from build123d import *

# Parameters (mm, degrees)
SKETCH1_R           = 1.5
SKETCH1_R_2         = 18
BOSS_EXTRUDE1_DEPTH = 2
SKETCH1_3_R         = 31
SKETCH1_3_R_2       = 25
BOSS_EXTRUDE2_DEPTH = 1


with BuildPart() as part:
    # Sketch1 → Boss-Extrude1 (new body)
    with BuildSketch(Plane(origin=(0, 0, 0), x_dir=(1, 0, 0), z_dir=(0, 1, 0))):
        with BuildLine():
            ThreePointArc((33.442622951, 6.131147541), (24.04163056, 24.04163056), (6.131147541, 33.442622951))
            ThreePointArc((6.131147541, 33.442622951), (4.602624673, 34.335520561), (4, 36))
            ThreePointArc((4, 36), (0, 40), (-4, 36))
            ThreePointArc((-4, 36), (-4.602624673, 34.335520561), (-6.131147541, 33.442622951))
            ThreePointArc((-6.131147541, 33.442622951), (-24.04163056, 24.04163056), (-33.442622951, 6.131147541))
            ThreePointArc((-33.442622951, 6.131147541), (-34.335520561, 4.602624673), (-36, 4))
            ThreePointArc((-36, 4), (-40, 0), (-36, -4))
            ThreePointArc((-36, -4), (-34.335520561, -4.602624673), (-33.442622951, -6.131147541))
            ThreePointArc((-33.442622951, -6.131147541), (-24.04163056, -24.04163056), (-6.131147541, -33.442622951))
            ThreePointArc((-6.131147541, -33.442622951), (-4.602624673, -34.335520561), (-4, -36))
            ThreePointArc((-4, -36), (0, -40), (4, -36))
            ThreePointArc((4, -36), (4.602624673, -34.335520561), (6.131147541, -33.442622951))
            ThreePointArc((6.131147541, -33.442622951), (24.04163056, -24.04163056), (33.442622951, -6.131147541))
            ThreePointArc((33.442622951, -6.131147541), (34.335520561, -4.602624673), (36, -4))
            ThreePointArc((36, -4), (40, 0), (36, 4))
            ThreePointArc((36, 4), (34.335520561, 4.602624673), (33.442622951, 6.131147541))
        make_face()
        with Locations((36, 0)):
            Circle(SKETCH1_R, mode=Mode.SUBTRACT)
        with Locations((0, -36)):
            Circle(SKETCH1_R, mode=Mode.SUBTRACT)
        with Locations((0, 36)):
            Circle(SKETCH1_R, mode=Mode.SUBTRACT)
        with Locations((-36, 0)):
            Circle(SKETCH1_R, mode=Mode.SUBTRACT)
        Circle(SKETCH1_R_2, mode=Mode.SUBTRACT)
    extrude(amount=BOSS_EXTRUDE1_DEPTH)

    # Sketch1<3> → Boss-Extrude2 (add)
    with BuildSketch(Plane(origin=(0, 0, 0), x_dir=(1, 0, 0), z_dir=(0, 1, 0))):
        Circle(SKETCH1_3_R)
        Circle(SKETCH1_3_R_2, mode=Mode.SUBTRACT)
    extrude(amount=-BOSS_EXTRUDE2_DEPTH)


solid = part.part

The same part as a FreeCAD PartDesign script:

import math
import FreeCAD as App
import Part
import Sketcher
from FreeCAD import Vector
Q = App.Units.Quantity

doc = App.newDocument("Part")
body = doc.addObject("PartDesign::Body", "Body")

sketch1 = body.newObject("Sketcher::SketchObject", "Sketch")
sketch1.AttachmentSupport = (doc.getObject("XZ_Plane"), [""])
sketch1.MapMode = "FlatFace"
sketch1.addGeometry([
    Part.ArcOfCircle(Part.Circle(Vector(0, 0, 0), Vector(0, 0, 1), 34), math.radians(-79.611142), math.radians(-10.388858)),
    Part.ArcOfCircle(Part.Circle(Vector(6.6, -36, 0), Vector(0, 0, 1), 2.6), math.radians(100.388858), math.radians(180)),
    Part.ArcOfCircle(Part.Circle(Vector(0, -36, 0), Vector(0, 0, 1), 4), math.radians(180), math.radians(360)),
    Part.ArcOfCircle(Part.Circle(Vector(-6.6, -36, 0), Vector(0, 0, 1), 2.6), math.radians(0), math.radians(79.611142)),
    Part.ArcOfCircle(Part.Circle(Vector(0, 0, 0), Vector(0, 0, 1), 34), math.radians(-169.611142), math.radians(-100.388858)),
    Part.ArcOfCircle(Part.Circle(Vector(-36, -6.6, 0), Vector(0, 0, 1), 2.6), math.radians(10.388858), math.radians(90)),
    Part.ArcOfCircle(Part.Circle(Vector(-36, 0, 0), Vector(0, 0, 1), 4), math.radians(90), math.radians(270)),
    Part.ArcOfCircle(Part.Circle(Vector(-36, 6.6, 0), Vector(0, 0, 1), 2.6), math.radians(-90), math.radians(-10.388858)),
    Part.ArcOfCircle(Part.Circle(Vector(0, 0, 0), Vector(0, 0, 1), 34), math.radians(100.388858), math.radians(169.611142)),
    Part.ArcOfCircle(Part.Circle(Vector(-6.6, 36, 0), Vector(0, 0, 1), 2.6), math.radians(-79.611142), math.radians(0)),
    Part.ArcOfCircle(Part.Circle(Vector(0, 36, 0), Vector(0, 0, 1), 4), math.radians(0), math.radians(180)),
    Part.ArcOfCircle(Part.Circle(Vector(6.6, 36, 0), Vector(0, 0, 1), 2.6), math.radians(180), math.radians(259.611142)),
    Part.ArcOfCircle(Part.Circle(Vector(0, 0, 0), Vector(0, 0, 1), 34), math.radians(10.388858), math.radians(79.611142)),
    Part.ArcOfCircle(Part.Circle(Vector(36, 6.6, 0), Vector(0, 0, 1), 2.6), math.radians(-169.611142), math.radians(-90)),
    Part.ArcOfCircle(Part.Circle(Vector(36, 0, 0), Vector(0, 0, 1), 4), math.radians(-90), math.radians(90)),
    Part.ArcOfCircle(Part.Circle(Vector(36, -6.6, 0), Vector(0, 0, 1), 2.6), math.radians(90), math.radians(169.611142)),
    Part.Circle(Vector(0, 36, 0), Vector(0, 0, 1), 1.5),
    Part.Circle(Vector(-36, 0, 0), Vector(0, 0, 1), 1.5),
    Part.Circle(Vector(0, 0, 0), Vector(0, 0, 1), 18),
    Part.Circle(Vector(36, 0, 0), Vector(0, 0, 1), 1.5),
    Part.Circle(Vector(0, -36, 0), Vector(0, 0, 1), 1.5),
], False)
sketch1.addConstraint([
    Sketcher.Constraint("Tangent", 0, 1, 1, 1),
    Sketcher.Constraint("Tangent", 1, 2, 2, 2),
    Sketcher.Constraint("Tangent", 2, 1, 3, 1),
    Sketcher.Constraint("Tangent", 3, 2, 4, 2),
    Sketcher.Constraint("Tangent", 4, 1, 5, 1),
    Sketcher.Constraint("Tangent", 5, 2, 6, 2),
    Sketcher.Constraint("Tangent", 6, 1, 7, 1),
    Sketcher.Constraint("Tangent", 7, 2, 8, 2),
    Sketcher.Constraint("Tangent", 8, 1, 9, 1),
    Sketcher.Constraint("Tangent", 9, 2, 10, 2),
    Sketcher.Constraint("Tangent", 10, 1, 11, 1),
    Sketcher.Constraint("Tangent", 11, 2, 12, 2),
    Sketcher.Constraint("Tangent", 12, 1, 13, 1),
    Sketcher.Constraint("Tangent", 13, 2, 14, 2),
    Sketcher.Constraint("Tangent", 14, 1, 15, 1),
    Sketcher.Constraint("Tangent", 15, 2, 0, 2),
    Sketcher.Constraint("Coincident", 0, 3, -1, 1),
    Sketcher.Constraint("Coincident", 4, 3, -1, 1),
    Sketcher.Constraint("Coincident", 8, 3, -1, 1),
    Sketcher.Constraint("Coincident", 12, 3, -1, 1),
    Sketcher.Constraint("Coincident", 18, 3, -1, 1),
    Sketcher.Constraint("Coincident", 16, 3, 10, 3),
    Sketcher.Constraint("Coincident", 17, 3, 6, 3),
    Sketcher.Constraint("Coincident", 19, 3, 14, 3),
    Sketcher.Constraint("Coincident", 20, 3, 2, 3),
    Sketcher.Constraint("Equal", 1, 3),
    Sketcher.Constraint("Equal", 0, 4),
    Sketcher.Constraint("Equal", 3, 5),
    Sketcher.Constraint("Equal", 2, 6),
    Sketcher.Constraint("Equal", 5, 7),
    Sketcher.Constraint("Equal", 4, 8),
    Sketcher.Constraint("Equal", 7, 9),
    Sketcher.Constraint("Equal", 6, 10),
    Sketcher.Constraint("Equal", 9, 11),
    Sketcher.Constraint("Equal", 8, 12),
    Sketcher.Constraint("Equal", 11, 13),
    Sketcher.Constraint("Equal", 10, 14),
    Sketcher.Constraint("Equal", 13, 15),
    Sketcher.Constraint("Equal", 16, 17),
    Sketcher.Constraint("Equal", 17, 19),
    Sketcher.Constraint("Equal", 19, 20),
    Sketcher.Constraint("Symmetric", 2, 3, 10, 3, -1, 1),
    Sketcher.Constraint("Symmetric", 6, 3, 14, 3, -1, 1),
    Sketcher.Constraint("PointOnObject", 2, 3, -2),
    Sketcher.Constraint("PointOnObject", 6, 3, -1),
    Sketcher.Constraint("Horizontal", 1, 3, 2, 3),
    Sketcher.Constraint("Vertical", 5, 3, 6, 3),
    Sketcher.Constraint("Diameter", 16, Q("3 mm")),
    Sketcher.Constraint("Diameter", 18, Q("36 mm")),
    Sketcher.Constraint("Radius", 0, Q("34 mm")),
    Sketcher.Constraint("Radius", 2, Q("4 mm")),
    Sketcher.Constraint("Radius", 1, Q("2.6 mm")),
])
pad1 = body.newObject("PartDesign::Pad", "Pad")
pad1.Profile = sketch1
pad1.Length = 2
pad1.Reversed = True

sketch2 = body.newObject("Sketcher::SketchObject", "Sketch001")
sketch2.AttachmentSupport = (doc.getObject("XZ_Plane"), [""])
sketch2.MapMode = "FlatFace"
sketch2.addGeometry([
    Part.Circle(Vector(0, 0, 0), Vector(0, 0, 1), 31),
    Part.Circle(Vector(0, 0, 0), Vector(0, 0, 1), 25),
], False)
sketch2.addConstraint([
    Sketcher.Constraint("Coincident", 0, 3, -1, 1),
    Sketcher.Constraint("Coincident", 1, 3, -1, 1),
    Sketcher.Constraint("Diameter", 0, Q("62 mm")),
    Sketcher.Constraint("Diameter", 1, Q("50 mm")),
])
pad2 = body.newObject("PartDesign::Pad", "Pad001")
pad2.Profile = sketch2
pad2.Length = 1

doc.recompute()
